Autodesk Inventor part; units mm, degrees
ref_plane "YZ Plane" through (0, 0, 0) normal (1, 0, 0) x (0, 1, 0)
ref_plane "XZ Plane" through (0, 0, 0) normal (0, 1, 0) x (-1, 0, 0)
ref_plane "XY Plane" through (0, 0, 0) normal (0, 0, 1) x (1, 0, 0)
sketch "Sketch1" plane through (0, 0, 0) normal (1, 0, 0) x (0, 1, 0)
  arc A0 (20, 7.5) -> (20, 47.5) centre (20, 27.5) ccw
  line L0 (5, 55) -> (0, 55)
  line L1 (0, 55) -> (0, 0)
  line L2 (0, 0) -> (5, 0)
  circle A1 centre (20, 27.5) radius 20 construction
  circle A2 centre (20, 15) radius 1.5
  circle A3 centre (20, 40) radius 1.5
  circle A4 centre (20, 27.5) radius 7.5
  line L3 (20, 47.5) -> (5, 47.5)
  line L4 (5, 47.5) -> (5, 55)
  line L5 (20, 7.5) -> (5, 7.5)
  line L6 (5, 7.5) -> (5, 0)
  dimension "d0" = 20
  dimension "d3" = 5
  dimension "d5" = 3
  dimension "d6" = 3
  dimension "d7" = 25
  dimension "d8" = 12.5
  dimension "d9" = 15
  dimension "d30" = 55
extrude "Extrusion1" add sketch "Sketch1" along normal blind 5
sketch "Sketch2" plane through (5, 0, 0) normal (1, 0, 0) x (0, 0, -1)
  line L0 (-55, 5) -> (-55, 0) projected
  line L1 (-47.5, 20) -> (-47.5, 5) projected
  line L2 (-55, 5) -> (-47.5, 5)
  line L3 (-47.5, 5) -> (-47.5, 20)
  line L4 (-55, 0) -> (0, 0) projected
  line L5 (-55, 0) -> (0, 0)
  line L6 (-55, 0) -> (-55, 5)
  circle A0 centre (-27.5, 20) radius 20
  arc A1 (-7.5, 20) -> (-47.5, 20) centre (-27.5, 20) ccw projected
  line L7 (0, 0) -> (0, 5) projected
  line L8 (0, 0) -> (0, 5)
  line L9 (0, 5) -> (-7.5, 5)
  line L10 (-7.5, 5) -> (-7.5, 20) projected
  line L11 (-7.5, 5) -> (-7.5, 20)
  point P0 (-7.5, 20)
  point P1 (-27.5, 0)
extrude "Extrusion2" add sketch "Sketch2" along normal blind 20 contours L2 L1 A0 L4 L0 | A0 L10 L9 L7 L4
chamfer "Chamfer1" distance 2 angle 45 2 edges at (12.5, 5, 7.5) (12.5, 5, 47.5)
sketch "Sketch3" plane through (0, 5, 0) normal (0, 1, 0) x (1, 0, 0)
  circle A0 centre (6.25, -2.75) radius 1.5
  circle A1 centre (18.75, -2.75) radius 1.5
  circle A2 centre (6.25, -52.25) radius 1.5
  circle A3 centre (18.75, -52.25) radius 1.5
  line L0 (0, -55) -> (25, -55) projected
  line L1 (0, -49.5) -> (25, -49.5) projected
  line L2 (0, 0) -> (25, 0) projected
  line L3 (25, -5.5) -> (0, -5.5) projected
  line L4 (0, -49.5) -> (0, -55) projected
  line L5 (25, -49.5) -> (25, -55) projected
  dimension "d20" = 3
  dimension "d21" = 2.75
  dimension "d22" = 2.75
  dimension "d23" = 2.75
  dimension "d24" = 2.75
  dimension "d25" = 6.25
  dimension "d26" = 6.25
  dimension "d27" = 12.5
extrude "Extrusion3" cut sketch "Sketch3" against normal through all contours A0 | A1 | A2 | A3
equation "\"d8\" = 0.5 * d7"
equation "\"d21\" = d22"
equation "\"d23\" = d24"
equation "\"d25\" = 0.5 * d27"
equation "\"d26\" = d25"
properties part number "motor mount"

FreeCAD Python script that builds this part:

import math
import FreeCAD as App
import Part
import Sketcher
from FreeCAD import Vector
Q = App.Units.Quantity


def edges_at(feature, points):
    """Names of the edges that pass closest to the given points."""
    edges = feature.Shape.Edges
    near = lambda p: min(range(len(edges)), key=lambda i: edges[i].distToShape(Part.Vertex(*p))[0])
    return sorted({f"Edge{near(p) + 1}" for p in points})

doc = App.newDocument("Part")
body = doc.addObject("PartDesign::Body", "Body")

# Sketch on YZ plane
sketch1 = body.newObject("Sketcher::SketchObject", "Sketch")
sketch1.AttachmentSupport = (doc.getObject("YZ_Plane"), [""])
sketch1.MapMode = "FlatFace"
sketch1.addGeometry(Part.LineSegment(Vector(5, 7.5, 0), Vector(20, 7.5, 0)), False)
sketch1.addGeometry(Part.ArcOfCircle(Part.Circle(Vector(20, 27.5, 0), Vector(0, 0, 1), 20), math.radians(-90), math.radians(90)), False)
sketch1.addGeometry(Part.LineSegment(Vector(20, 47.5, 0), Vector(5, 47.5, 0)), False)
sketch1.addGeometry(Part.LineSegment(Vector(5, 47.5, 0), Vector(5, 55, 0)), False)
sketch1.addGeometry(Part.LineSegment(Vector(5, 55, 0), Vector(0, 55, 0)), False)
sketch1.addGeometry(Part.LineSegment(Vector(0, 55, 0), Vector(0, 0, 0)), False)
sketch1.addGeometry(Part.LineSegment(Vector(0, 0, 0), Vector(5, 0, 0)), False)
sketch1.addGeometry(Part.LineSegment(Vector(5, 0, 0), Vector(5, 7.5, 0)), False)
sketch1.addGeometry(Part.Circle(Vector(20, 15, 0), Vector(0, 0, 1), 1.5), False)
sketch1.addGeometry(Part.Circle(Vector(20, 27.5, 0), Vector(0, 0, 1), 7.5), False)
sketch1.addGeometry(Part.Circle(Vector(20, 40, 0), Vector(0, 0, 1), 1.5), False)
sketch1.addConstraint(Sketcher.Constraint("Tangent", 0, 2, 1, 1))
sketch1.addConstraint(Sketcher.Constraint("Tangent", 1, 2, 2, 1))
sketch1.addConstraint(Sketcher.Constraint("Coincident", 2, 2, 3, 1))
sketch1.addConstraint(Sketcher.Constraint("Coincident", 3, 2, 4, 1))
sketch1.addConstraint(Sketcher.Constraint("Coincident", 4, 2, 5, 1))
sketch1.addConstraint(Sketcher.Constraint("Coincident", 5, 2, 6, 1))
sketch1.addConstraint(Sketcher.Constraint("Coincident", 6, 2, 7, 1))
sketch1.addConstraint(Sketcher.Constraint("Coincident", 7, 2, 0, 1))
sketch1.addConstraint(Sketcher.Constraint("Horizontal", 0))
sketch1.addConstraint(Sketcher.Constraint("Horizontal", 2))
sketch1.addConstraint(Sketcher.Constraint("Vertical", 3))
sketch1.addConstraint(Sketcher.Constraint("Horizontal", 4))
sketch1.addConstraint(Sketcher.Constraint("Vertical", 5))
sketch1.addConstraint(Sketcher.Constraint("Horizontal", 6))
sketch1.addConstraint(Sketcher.Constraint("Vertical", 7))
sketch1.addConstraint(Sketcher.Constraint("Coincident", 5, 2, -1, 1))
sketch1.addConstraint(Sketcher.Constraint("Coincident", 9, 3, 1, 3))
sketch1.addConstraint(Sketcher.Constraint("Equal", 8, 10))
sketch1.addConstraint(Sketcher.Constraint("Vertical", 1, 3, 8, 3))
sketch1.addConstraint(Sketcher.Constraint("Vertical", 9, 3, 10, 3))
sketch1.addConstraint(Sketcher.Constraint("Vertical", 3, 2, 6, 2))
sketch1.addConstraint(Sketcher.Constraint("Equal", 3, 7))
sketch1.addConstraint(Sketcher.Constraint("Diameter", 8, Q("3 mm")))
sketch1.addConstraint(Sketcher.Constraint("Diameter", 9, Q("15 mm")))
sketch1.addConstraint(Sketcher.Constraint("Radius", 1, Q("20 mm")))
sketch1.addConstraint(Sketcher.Constraint("DistanceX", 0, 1, 0, 2, Q("15 mm")))
sketch1.addConstraint(Sketcher.Constraint("DistanceX", 4, 2, 4, 1, Q("5 mm")))
sketch1.addConstraint(Sketcher.Constraint("DistanceY", 5, 2, 5, 1, Q("55 mm")))
sketch1.addConstraint(Sketcher.Constraint("DistanceY", -1, 1, 8, 3, Q("15 mm")))
sketch1.addConstraint(Sketcher.Constraint("DistanceY", 8, 3, 10, 3, Q("25 mm")))
pad1 = body.newObject("PartDesign::Pad", "Pad")
pad1.Profile = sketch1
pad1.Length = 5

# Sketch on YZ plane
sketch2 = body.newObject("Sketcher::SketchObject", "Sketch001")
sketch2.AttachmentSupport = (doc.getObject("YZ_Plane"), [""])
sketch2.MapMode = "FlatFace"
sketch2.AttachmentOffset = App.Placement(Vector(0, 0, 5), App.Rotation())
sketch2.addGeometry(Part.LineSegment(Vector(5, 47.5, 0), Vector(5, 55, 0)), False)
sketch2.addGeometry(Part.LineSegment(Vector(5, 55, 0), Vector(0, 55, 0)), False)
sketch2.addGeometry(Part.LineSegment(Vector(0, 55, 0), Vector(0, 27.5, 0)), False)
sketch2.addGeometry(Part.ArcOfCircle(Part.Circle(Vector(20, 27.5, 0), Vector(0, 0, 1), 20), math.radians(90), math.radians(180)), False)
sketch2.addGeometry(Part.LineSegment(Vector(20, 47.5, 0), Vector(5, 47.5, 0)), False)
sketch2.addGeometry(Part.ArcOfCircle(Part.Circle(Vector(20, 27.5, 0), Vector(0, 0, 1), 20), math.radians(180), math.radians(270)), False)
sketch2.addGeometry(Part.LineSegment(Vector(0, 27.5, 0), Vector(0, 0, 0)), False)
sketch2.addGeometry(Part.LineSegment(Vector(0, 0, 0), Vector(5, 0, 0)), False)
sketch2.addGeometry(Part.LineSegment(Vector(5, 0, 0), Vector(5, 7.5, 0)), False)
sketch2.addGeometry(Part.LineSegment(Vector(5, 7.5, 0), Vector(20, 7.5, 0)), False)
sketch2.addConstraint(Sketcher.Constraint("Coincident", 0, 2, 1, 1))
sketch2.addConstraint(Sketcher.Constraint("Coincident", 1, 2, 2, 1))
sketch2.addConstraint(Sketcher.Constraint("Tangent", 2, 2, 3, 2))
sketch2.addConstraint(Sketcher.Constraint("Tangent", 3, 1, 4, 1))
sketch2.addConstraint(Sketcher.Constraint("Coincident", 4, 2, 0, 1))
sketch2.addConstraint(Sketcher.Constraint("Tangent", 5, 1, 6, 1))
sketch2.addConstraint(Sketcher.Constraint("Coincident", 6, 2, 7, 1))
sketch2.addConstraint(Sketcher.Constraint("Coincident", 7, 2, 8, 1))
sketch2.addConstraint(Sketcher.Constraint("Coincident", 8, 2, 9, 1))
sketch2.addConstraint(Sketcher.Constraint("Tangent", 9, 2, 5, 2))
sketch2.addConstraint(Sketcher.Constraint("Vertical", 0))
sketch2.addConstraint(Sketcher.Constraint("Horizontal", 1))
sketch2.addConstraint(Sketcher.Constraint("Vertical", 2))
sketch2.addConstraint(Sketcher.Constraint("Horizontal", 4))
sketch2.addConstraint(Sketcher.Constraint("Vertical", 6))
sketch2.addConstraint(Sketcher.Constraint("Horizontal", 7))
sketch2.addConstraint(Sketcher.Constraint("Vertical", 8))
sketch2.addConstraint(Sketcher.Constraint("Horizontal", 9))
sketch2.addConstraint(Sketcher.Constraint("Coincident", 6, 2, -1, 1))
sketch2.addConstraint(Sketcher.Constraint("Coincident", 5, 3, 3, 3))
sketch2.addConstraint(Sketcher.Constraint("Equal", 3, 5))
sketch2.addConstraint(Sketcher.Constraint("Vertical", 4, 2, 7, 2))
sketch2.addConstraint(Sketcher.Constraint("Equal", 2, 6))
sketch2.addConstraint(Sketcher.Constraint("Radius", 3, Q("20 mm")))
sketch2.addConstraint(Sketcher.Constraint("DistanceX", 1, 2, 1, 1, Q("5 mm")))
sketch2.addConstraint(Sketcher.Constraint("DistanceY", 0, 1, 0, 2, Q("7.5 mm")))
pad2 = body.newObject("PartDesign::Pad", "Pad001")
pad2.Profile = sketch2
pad2.Length = 20
doc.recompute()

chamfer = body.newObject("PartDesign::Chamfer", "Chamfer")
chamfer.Base = (pad2, edges_at(pad2, [(12.5, 5, 7.5), (12.5, 5, 47.5)]))
chamfer.Size = 2

# Sketch on XZ plane
sketch3 = body.newObject("Sketcher::SketchObject", "Sketch002")
sketch3.AttachmentSupport = (doc.getObject("XZ_Plane"), [""])
sketch3.MapMode = "FlatFace"
sketch3.AttachmentOffset = App.Placement(Vector(0, 0, -5), App.Rotation())
sketch3.addGeometry(Part.Circle(Vector(6.25, 2.75, 0), Vector(0, 0, 1), 1.5), False)
sketch3.addGeometry(Part.Circle(Vector(18.75, 2.75, 0), Vector(0, 0, 1), 1.5), False)
sketch3.addGeometry(Part.Circle(Vector(6.25, 52.25, 0), Vector(0, 0, 1), 1.5), False)
sketch3.addGeometry(Part.Circle(Vector(18.75, 52.25, 0), Vector(0, 0, 1), 1.5), False)
sketch3.addConstraint(Sketcher.Constraint("Equal", 0, 1))
sketch3.addConstraint(Sketcher.Constraint("Equal", 1, 2))
sketch3.addConstraint(Sketcher.Constraint("Equal", 2, 3))
sketch3.addConstraint(Sketcher.Constraint("Horizontal", 0, 3, 1, 3))
sketch3.addConstraint(Sketcher.Constraint("Horizontal", 2, 3, 3, 3))
sketch3.addConstraint(Sketcher.Constraint("Vertical", 0, 3, 2, 3))
sketch3.addConstraint(Sketcher.Constraint("Vertical", 1, 3, 3, 3))
sketch3.addConstraint(Sketcher.Constraint("Diameter", 0, Q("3 mm")))
sketch3.addConstraint(Sketcher.Constraint("DistanceX", 0, 3, 1, 3, Q("12.5 mm")))
sketch3.addConstraint(Sketcher.Constraint("DistanceX", -1, 1, 0, 3, Q("6.25 mm")))
sketch3.addConstraint(Sketcher.Constraint("DistanceY", -1, 1, 0, 3, Q("2.75 mm")))
sketch3.addConstraint(Sketcher.Constraint("DistanceY", 0, 3, 2, 3, Q("49.5 mm")))
pocket1 = body.newObject("PartDesign::Pocket", "Pocket")
pocket1.Profile = sketch3
pocket1.Type = "ThroughAll"
pocket1.Reversed = True

doc.recompute()
